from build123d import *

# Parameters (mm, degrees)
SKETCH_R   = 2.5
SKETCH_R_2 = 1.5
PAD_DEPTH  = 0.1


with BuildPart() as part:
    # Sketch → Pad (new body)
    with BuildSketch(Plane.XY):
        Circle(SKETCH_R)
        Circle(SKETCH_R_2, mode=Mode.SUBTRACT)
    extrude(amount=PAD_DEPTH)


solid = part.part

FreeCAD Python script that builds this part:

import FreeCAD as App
import Part
import Sketcher

V = App.Vector

doc = App.newDocument("Part")
body = doc.addObject("PartDesign::Body", "Body")

sketch1 = body.newObject("Sketcher::SketchObject", "Sketch")
sketch1.AttachmentSupport = (doc.getObject("XY_Plane"), [""])
sketch1.MapMode = "FlatFace"
sketch1.addGeometry([
    Part.Circle(V(0, 0, 0), V(0, 0, 1), 2.5),
    Part.Circle(V(0, 0, 0), V(0, 0, 1), 1.5),
], False)
sketch1.addConstraint([
    Sketcher.Constraint("Coincident", 0, 3, -1, 1),
    Sketcher.Constraint("Coincident", 1, 3, -1, 1),
    Sketcher.Constraint("Diameter", 0, 5.0),
    Sketcher.Constraint("Diameter", 1, 3.0),
])
pad1 = body.newObject("PartDesign::Pad", "Pad")
pad1.Profile = sketch1
pad1.Length = 0.1

doc.recompute()
